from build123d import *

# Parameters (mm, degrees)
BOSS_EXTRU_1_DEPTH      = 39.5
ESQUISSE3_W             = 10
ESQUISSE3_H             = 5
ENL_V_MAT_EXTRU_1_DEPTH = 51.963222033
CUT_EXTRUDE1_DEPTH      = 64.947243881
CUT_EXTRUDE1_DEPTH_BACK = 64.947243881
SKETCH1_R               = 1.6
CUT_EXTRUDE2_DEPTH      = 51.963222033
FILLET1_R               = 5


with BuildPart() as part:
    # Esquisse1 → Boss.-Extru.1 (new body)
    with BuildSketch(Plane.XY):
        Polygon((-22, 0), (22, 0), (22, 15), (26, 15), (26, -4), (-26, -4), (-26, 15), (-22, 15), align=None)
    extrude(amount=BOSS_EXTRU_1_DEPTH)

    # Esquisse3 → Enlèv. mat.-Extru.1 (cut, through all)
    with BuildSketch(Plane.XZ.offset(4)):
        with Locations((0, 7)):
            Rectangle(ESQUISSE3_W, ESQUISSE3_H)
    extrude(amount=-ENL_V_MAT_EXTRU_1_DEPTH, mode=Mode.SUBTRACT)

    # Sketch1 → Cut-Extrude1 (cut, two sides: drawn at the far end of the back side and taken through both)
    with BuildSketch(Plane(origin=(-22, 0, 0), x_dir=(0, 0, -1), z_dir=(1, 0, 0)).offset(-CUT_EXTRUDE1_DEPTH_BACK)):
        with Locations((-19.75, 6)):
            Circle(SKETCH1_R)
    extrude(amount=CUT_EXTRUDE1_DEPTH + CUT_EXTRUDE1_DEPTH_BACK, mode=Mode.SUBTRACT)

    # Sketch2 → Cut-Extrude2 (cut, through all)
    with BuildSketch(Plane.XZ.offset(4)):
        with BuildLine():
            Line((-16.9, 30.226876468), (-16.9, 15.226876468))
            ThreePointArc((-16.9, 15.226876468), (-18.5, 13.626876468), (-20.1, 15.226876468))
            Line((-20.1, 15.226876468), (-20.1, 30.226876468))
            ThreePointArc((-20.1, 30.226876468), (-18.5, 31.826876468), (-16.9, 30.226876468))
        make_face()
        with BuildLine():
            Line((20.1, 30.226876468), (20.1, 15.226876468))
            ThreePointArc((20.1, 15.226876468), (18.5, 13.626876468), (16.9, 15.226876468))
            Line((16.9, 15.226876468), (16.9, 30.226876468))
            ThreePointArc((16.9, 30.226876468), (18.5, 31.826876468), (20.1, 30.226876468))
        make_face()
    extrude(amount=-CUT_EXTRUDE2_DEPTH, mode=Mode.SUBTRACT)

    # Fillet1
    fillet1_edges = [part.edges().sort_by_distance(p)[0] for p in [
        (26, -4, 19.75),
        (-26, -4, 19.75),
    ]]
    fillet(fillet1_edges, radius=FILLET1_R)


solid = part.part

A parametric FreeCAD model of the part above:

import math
import FreeCAD as App
import Part
import Sketcher
from FreeCAD import Vector
Q = App.Units.Quantity


def edges_at(feature, points):
    """Names of the edges that pass closest to the given points."""
    edges = feature.Shape.Edges
    near = lambda p: min(range(len(edges)), key=lambda i: edges[i].distToShape(Part.Vertex(*p))[0])
    return sorted({f"Edge{near(p) + 1}" for p in points})


def add_polygon(sketch, points):
    """Adds a closed chain of lines whose ends are joined by coincident constraints."""
    first, n = sketch.GeometryCount, len(points)
    for a, b in zip(points, points[1:] + points[:1]):
        sketch.addGeometry(Part.LineSegment(App.Vector(*a, 0), App.Vector(*b, 0)), False)
    for i in range(n):
        sketch.addConstraint(Sketcher.Constraint("Coincident", first + i, 2, first + (i + 1) % n, 1))

doc = App.newDocument("Part")
params = doc.addObject("Spreadsheet::Sheet", "Params")
for row, (alias, value) in enumerate([
    ("sketch1_width", "44 mm"),
    ("sketch1_width2", "4 mm"),
    ("sketch1_height", "15 mm"),
    ("sketch1_height2", "19 mm"),
    ("pad1_length", "39.5 mm"),
    ("sketch2_width", "10 mm"),
    ("sketch2_height", "5 mm"),
    ("sketch3_diameter", "3.2 mm"),
    ("sketch4_radius", "1.6 mm"),
    ("sketch4_height", "15 mm"),
    ("fillet_radius", "5 mm"),
], start=1):
    params.set(f"A{row}", alias)
    params.set(f"B{row}", "=" + value)
    params.setAlias(f"B{row}", alias)

body = doc.addObject("PartDesign::Body", "Body")

# Sketch on XY plane
sketch1 = body.newObject("Sketcher::SketchObject", "Sketch")
sketch1.AttachmentSupport = (doc.getObject("XY_Plane"), [""])
sketch1.MapMode = "FlatFace"
add_polygon(sketch1, [(22, 0), (-22, 0), (-22, 15), (-26, 15), (-26, -4), (26, -4), (26, 15), (22, 15)])  # lines 0-7
sketch1.addConstraint(Sketcher.Constraint("Horizontal", 0))
sketch1.addConstraint(Sketcher.Constraint("Vertical", 1))
sketch1.addConstraint(Sketcher.Constraint("Horizontal", 2))
sketch1.addConstraint(Sketcher.Constraint("Vertical", 3))
sketch1.addConstraint(Sketcher.Constraint("Horizontal", 4))
sketch1.addConstraint(Sketcher.Constraint("Vertical", 5))
sketch1.addConstraint(Sketcher.Constraint("Horizontal", 6))
sketch1.addConstraint(Sketcher.Constraint("Vertical", 7))
sketch1.addConstraint(Sketcher.Constraint("Symmetric", 0, 2, 7, 2, -1, 1))
sketch1.addConstraint(Sketcher.Constraint("Symmetric", 2, 2, 5, 2, -2))
sketch1.addConstraint(Sketcher.Constraint("DistanceX", 0, 2, 0, 1, Q("44 mm")))
sketch1.addConstraint(Sketcher.Constraint("DistanceX", 2, 2, 2, 1, Q("4 mm")))
sketch1.addConstraint(Sketcher.Constraint("DistanceY", 1, 1, 1, 2, Q("15 mm")))
sketch1.addConstraint(Sketcher.Constraint("DistanceY", 3, 2, 3, 1, Q("19 mm")))
sketch1.setExpression("Constraints[18]", "Params.sketch1_width")
sketch1.setExpression("Constraints[19]", "Params.sketch1_width2")
sketch1.setExpression("Constraints[20]", "Params.sketch1_height")
sketch1.setExpression("Constraints[21]", "Params.sketch1_height2")
pad1 = body.newObject("PartDesign::Pad", "Pad")
pad1.Profile = sketch1
pad1.setExpression("Length", "Params.pad1_length")

# Sketch on XZ plane
sketch2 = body.newObject("Sketcher::SketchObject", "Sketch001")
sketch2.AttachmentSupport = (doc.getObject("XZ_Plane"), [""])
sketch2.MapMode = "FlatFace"
sketch2.AttachmentOffset = App.Placement(Vector(0, 0, 4), App.Rotation())
add_polygon(sketch2, [(-5, 10), (-5, 4), (5, 4), (5, 10)])  # lines 0-3
sketch2.addConstraint(Sketcher.Constraint("Vertical", 0))
sketch2.addConstraint(Sketcher.Constraint("Horizontal", 1))
sketch2.addConstraint(Sketcher.Constraint("Vertical", 2))
sketch2.addConstraint(Sketcher.Constraint("Horizontal", 3))
sketch2.addConstraint(Sketcher.Constraint("DistanceX", 1, 1, 1, 2, Q("10 mm")))
sketch2.addConstraint(Sketcher.Constraint("DistanceY", 0, 2, 0, 1, Q("5 mm")))
sketch2.addConstraint(Sketcher.Constraint("DistanceX", 0, 2, -1, 1, Q("5 mm")))
sketch2.addConstraint(Sketcher.Constraint("DistanceY", -1, 1, 0, 2, Q("4.5 mm")))
sketch2.setExpression("Constraints[8]", "Params.sketch2_width")
sketch2.setExpression("Constraints[9]", "Params.sketch2_height")
pocket1 = body.newObject("PartDesign::Pocket", "Pocket")
pocket1.Profile = sketch2
pocket1.Type = "ThroughAll"

# Sketch on YZ plane
sketch3 = body.newObject("Sketcher::SketchObject", "Sketch002")
sketch3.AttachmentSupport = (doc.getObject("YZ_Plane"), [""])
sketch3.MapMode = "FlatFace"
sketch3.AttachmentOffset = App.Placement(Vector(0, 0, -22), App.Rotation())
sketch3.addGeometry(Part.Circle(Vector(6, 19.8, 0), Vector(0, 0, 1), 1.6), False)
sketch3.addConstraint(Sketcher.Constraint("Diameter", 0, Q("3.2 mm")))
sketch3.addConstraint(Sketcher.Constraint("DistanceX", -1, 1, 0, 3, Q("6 mm")))
sketch3.addConstraint(Sketcher.Constraint("DistanceY", -1, 1, 0, 3, Q("19.75 mm")))
sketch3.setExpression("Constraints[0]", "Params.sketch3_diameter")
pocket2 = body.newObject("PartDesign::Pocket", "Pocket001")
pocket2.Profile = sketch3
pocket2.Type = "ThroughAll"
pocket2.Midplane = True

# Sketch on XZ plane
sketch4 = body.newObject("Sketcher::SketchObject", "Sketch003")
sketch4.AttachmentSupport = (doc.getObject("XZ_Plane"), [""])
sketch4.MapMode = "FlatFace"
sketch4.AttachmentOffset = App.Placement(Vector(0, 0, 4), App.Rotation())
sketch4.addGeometry(Part.LineSegment(Vector(-16.9, 15.2, 0), Vector(-16.9, 30.2, 0)), False)
sketch4.addGeometry(Part.ArcOfCircle(Part.Circle(Vector(-18.5, 30.2, 0), Vector(0, 0, 1), 1.6), math.radians(0), math.radians(180)), False)
sketch4.addGeometry(Part.LineSegment(Vector(-20.1, 30.2, 0), Vector(-20.1, 15.2, 0)), False)
sketch4.addGeometry(Part.ArcOfCircle(Part.Circle(Vector(-18.5, 15.2, 0), Vector(0, 0, 1), 1.6), math.radians(180), math.radians(360)), False)
sketch4.addGeometry(Part.LineSegment(Vector(20.1, 15.2, 0), Vector(20.1, 30.2, 0)), False)
sketch4.addGeometry(Part.ArcOfCircle(Part.Circle(Vector(18.5, 30.2, 0), Vector(0, 0, 1), 1.6), math.radians(0), math.radians(180)), False)
sketch4.addGeometry(Part.LineSegment(Vector(16.9, 30.2, 0), Vector(16.9, 15.2, 0)), False)
sketch4.addGeometry(Part.ArcOfCircle(Part.Circle(Vector(18.5, 15.2, 0), Vector(0, 0, 1), 1.6), math.radians(180), math.radians(360)), False)
sketch4.addConstraint(Sketcher.Constraint("Tangent", 0, 2, 1, 1))
sketch4.addConstraint(Sketcher.Constraint("Tangent", 1, 2, 2, 1))
sketch4.addConstraint(Sketcher.Constraint("Tangent", 2, 2, 3, 1))
sketch4.addConstraint(Sketcher.Constraint("Tangent", 3, 2, 0, 1))
sketch4.addConstraint(Sketcher.Constraint("Tangent", 4, 2, 5, 1))
sketch4.addConstraint(Sketcher.Constraint("Tangent", 5, 2, 6, 1))
sketch4.addConstraint(Sketcher.Constraint("Tangent", 6, 2, 7, 1))
sketch4.addConstraint(Sketcher.Constraint("Tangent", 7, 2, 4, 1))
sketch4.addConstraint(Sketcher.Constraint("Vertical", 0))
sketch4.addConstraint(Sketcher.Constraint("Vertical", 2))
sketch4.addConstraint(Sketcher.Constraint("Vertical", 4))
sketch4.addConstraint(Sketcher.Constraint("Vertical", 6))
sketch4.addConstraint(Sketcher.Constraint("Equal", 3, 5))
sketch4.addConstraint(Sketcher.Constraint("Symmetric", 1, 3, 5, 3, -2))
sketch4.addConstraint(Sketcher.Constraint("Horizontal", 3, 3, 7, 3))
sketch4.addConstraint(Sketcher.Constraint("Radius", 1, Q("1.6 mm")))
sketch4.addConstraint(Sketcher.Constraint("DistanceY", 0, 1, 0, 2, Q("15 mm")))
sketch4.addConstraint(Sketcher.Constraint("DistanceX", 1, 3, 5, 3, Q("37 mm")))
sketch4.addConstraint(Sketcher.Constraint("DistanceY", -1, 1, 1, 3, Q("30.226876 mm")))
sketch4.setExpression("Constraints[15]", "Params.sketch4_radius")
sketch4.setExpression("Constraints[16]", "Params.sketch4_height")
pocket3 = body.newObject("PartDesign::Pocket", "Pocket002")
pocket3.Profile = sketch4
pocket3.Type = "ThroughAll"
doc.recompute()

fillet = body.newObject("PartDesign::Fillet", "Fillet")
fillet.Base = (pocket3, edges_at(pocket3, [(26, -4, 19.75), (-26, -4, 19.75)]))
fillet.setExpression("Radius", "Params.fillet_radius")

doc.recompute()
